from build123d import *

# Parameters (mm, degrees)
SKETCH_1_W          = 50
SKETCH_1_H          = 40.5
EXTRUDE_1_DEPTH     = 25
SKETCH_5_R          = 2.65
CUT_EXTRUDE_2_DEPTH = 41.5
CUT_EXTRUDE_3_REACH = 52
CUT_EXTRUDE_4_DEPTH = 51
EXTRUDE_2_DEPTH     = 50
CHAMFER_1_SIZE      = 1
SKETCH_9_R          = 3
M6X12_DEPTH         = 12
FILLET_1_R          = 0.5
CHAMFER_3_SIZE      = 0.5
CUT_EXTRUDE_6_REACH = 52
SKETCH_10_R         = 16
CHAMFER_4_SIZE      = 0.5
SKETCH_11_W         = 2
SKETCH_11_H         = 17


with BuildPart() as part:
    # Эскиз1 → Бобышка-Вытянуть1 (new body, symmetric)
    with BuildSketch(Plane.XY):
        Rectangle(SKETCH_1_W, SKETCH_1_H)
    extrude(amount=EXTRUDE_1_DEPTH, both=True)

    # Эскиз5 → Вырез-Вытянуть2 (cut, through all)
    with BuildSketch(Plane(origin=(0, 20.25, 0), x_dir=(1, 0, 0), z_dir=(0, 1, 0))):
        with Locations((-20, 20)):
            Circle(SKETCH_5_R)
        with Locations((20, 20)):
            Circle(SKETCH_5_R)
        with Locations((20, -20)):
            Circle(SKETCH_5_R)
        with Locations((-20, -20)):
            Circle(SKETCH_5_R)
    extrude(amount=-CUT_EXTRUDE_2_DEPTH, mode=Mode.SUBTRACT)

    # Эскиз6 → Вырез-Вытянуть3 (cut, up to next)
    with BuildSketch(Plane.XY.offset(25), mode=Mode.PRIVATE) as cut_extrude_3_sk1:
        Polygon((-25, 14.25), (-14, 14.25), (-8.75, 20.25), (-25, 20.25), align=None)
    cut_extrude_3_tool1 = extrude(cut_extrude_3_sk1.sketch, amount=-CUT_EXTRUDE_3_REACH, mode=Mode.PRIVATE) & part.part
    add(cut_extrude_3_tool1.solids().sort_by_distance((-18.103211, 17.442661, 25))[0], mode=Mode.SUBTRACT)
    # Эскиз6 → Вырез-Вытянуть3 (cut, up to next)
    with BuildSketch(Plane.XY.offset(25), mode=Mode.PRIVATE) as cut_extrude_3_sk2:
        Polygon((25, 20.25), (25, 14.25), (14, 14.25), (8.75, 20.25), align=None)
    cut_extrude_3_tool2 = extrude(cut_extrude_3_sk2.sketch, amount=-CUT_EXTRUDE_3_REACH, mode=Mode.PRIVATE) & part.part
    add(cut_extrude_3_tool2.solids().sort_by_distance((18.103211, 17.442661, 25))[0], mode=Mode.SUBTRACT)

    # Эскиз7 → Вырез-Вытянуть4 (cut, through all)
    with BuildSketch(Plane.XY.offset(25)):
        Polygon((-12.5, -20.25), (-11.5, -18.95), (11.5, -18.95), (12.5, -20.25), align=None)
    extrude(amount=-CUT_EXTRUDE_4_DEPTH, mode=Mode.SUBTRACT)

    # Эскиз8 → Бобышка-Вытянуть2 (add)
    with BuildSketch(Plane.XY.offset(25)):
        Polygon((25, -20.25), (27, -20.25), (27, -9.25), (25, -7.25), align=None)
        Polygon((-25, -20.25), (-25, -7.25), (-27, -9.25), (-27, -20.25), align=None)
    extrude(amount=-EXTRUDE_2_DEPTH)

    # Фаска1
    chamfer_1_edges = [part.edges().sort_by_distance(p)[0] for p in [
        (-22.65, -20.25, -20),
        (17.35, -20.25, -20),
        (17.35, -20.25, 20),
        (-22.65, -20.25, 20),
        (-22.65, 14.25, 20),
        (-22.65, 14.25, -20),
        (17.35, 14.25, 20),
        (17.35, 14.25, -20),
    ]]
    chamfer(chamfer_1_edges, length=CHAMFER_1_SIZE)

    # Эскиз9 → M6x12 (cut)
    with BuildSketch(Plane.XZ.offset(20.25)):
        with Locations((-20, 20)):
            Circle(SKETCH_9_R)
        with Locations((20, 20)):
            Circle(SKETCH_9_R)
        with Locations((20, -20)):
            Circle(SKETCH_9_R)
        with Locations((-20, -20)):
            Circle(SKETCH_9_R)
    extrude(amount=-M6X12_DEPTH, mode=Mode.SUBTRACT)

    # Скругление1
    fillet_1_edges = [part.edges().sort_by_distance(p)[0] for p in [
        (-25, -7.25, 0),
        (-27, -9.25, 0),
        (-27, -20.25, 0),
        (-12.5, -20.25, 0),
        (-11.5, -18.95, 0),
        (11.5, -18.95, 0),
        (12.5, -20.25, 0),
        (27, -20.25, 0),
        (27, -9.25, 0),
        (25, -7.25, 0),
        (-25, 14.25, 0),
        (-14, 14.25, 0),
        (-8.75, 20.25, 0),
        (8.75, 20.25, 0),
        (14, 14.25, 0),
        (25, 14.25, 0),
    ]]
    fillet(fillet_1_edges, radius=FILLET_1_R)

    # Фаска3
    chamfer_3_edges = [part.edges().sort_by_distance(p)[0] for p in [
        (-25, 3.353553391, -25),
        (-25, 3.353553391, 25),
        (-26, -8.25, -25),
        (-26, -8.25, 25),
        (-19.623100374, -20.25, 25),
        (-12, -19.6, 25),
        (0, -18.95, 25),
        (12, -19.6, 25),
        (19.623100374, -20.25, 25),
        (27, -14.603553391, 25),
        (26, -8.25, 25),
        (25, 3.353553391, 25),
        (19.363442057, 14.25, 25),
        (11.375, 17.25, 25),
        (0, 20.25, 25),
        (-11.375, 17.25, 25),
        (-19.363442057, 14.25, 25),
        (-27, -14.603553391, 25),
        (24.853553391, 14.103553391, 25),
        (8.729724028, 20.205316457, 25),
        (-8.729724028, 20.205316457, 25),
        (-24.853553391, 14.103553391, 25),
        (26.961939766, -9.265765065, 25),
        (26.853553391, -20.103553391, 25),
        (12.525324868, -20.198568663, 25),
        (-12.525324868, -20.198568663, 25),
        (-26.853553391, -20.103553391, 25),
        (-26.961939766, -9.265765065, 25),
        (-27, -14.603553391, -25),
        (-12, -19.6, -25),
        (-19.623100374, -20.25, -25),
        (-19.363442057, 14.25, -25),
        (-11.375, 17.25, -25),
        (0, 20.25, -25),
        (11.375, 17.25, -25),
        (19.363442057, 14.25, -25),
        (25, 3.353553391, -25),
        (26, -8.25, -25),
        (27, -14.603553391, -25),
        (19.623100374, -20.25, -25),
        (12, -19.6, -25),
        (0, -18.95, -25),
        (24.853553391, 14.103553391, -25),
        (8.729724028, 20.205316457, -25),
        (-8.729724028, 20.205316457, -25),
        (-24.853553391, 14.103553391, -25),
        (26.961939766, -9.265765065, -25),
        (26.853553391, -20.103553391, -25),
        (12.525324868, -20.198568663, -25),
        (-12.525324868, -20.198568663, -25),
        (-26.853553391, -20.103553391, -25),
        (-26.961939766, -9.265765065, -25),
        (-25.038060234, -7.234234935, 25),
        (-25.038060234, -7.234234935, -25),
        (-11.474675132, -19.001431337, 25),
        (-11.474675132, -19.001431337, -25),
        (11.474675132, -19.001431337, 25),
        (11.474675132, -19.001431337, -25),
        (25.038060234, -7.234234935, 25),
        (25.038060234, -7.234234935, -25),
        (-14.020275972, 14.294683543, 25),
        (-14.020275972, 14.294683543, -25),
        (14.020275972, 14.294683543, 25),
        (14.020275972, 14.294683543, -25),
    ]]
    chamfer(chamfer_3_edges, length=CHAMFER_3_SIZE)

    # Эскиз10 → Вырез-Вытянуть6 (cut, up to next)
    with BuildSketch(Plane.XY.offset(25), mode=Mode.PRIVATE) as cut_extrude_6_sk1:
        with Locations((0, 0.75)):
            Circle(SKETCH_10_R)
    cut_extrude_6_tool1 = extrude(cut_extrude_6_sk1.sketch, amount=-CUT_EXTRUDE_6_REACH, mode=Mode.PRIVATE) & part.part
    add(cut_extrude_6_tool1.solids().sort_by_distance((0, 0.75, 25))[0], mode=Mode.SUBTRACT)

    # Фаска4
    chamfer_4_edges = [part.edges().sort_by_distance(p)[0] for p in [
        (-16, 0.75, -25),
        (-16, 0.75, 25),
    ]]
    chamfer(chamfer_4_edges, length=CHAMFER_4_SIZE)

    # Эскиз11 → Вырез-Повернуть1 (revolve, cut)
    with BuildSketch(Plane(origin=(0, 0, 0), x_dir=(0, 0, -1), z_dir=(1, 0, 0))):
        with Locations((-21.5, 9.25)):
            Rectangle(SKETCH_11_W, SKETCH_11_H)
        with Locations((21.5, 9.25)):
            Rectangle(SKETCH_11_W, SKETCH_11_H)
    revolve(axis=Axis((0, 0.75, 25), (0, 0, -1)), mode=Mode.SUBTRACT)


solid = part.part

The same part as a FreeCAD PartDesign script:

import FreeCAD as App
import Part
import Sketcher
Q = App.Units.Quantity


def edges_at(feature, points):
    """Names of the edges that pass closest to the given points."""
    edges = feature.Shape.Edges
    near = lambda p: min(range(len(edges)), key=lambda i: edges[i].distToShape(Part.Vertex(*p))[0])
    return sorted({f"Edge{near(p) + 1}" for p in points})


def add_polygon(sketch, points):
    """Adds a closed chain of lines whose ends are joined by coincident constraints."""
    first, n = sketch.GeometryCount, len(points)
    for a, b in zip(points, points[1:] + points[:1]):
        sketch.addGeometry(Part.LineSegment(App.Vector(*a, 0), App.Vector(*b, 0)), False)
    for i in range(n):
        sketch.addConstraint(Sketcher.Constraint("Coincident", first + i, 2, first + (i + 1) % n, 1))

doc = App.newDocument("Part")
body = doc.addObject("PartDesign::Body", "Body")

sketch1 = body.newObject("Sketcher::SketchObject", "Sketch")
sketch1.AttachmentSupport = (doc.getObject("XY_Plane"), [""])
sketch1.MapMode = "FlatFace"
add_polygon(sketch1, [(-25, 20), (-25, -20), (25, -20), (25, 20)])
sketch1.addConstraint([
    Sketcher.Constraint("Vertical", 0),
    Sketcher.Constraint("Horizontal", 1),
    Sketcher.Constraint("Vertical", 2),
    Sketcher.Constraint("Horizontal", 3),
    Sketcher.Constraint("Symmetric", 0, 2, 2, 2, -1, 1),
    Sketcher.Constraint("DistanceX", 1, 1, 1, 2, Q("50 mm")),
    Sketcher.Constraint("DistanceY", 0, 2, 0, 1, Q("40.5 mm")),
])
pad1 = body.newObject("PartDesign::Pad", "Pad")
pad1.Profile = sketch1
pad1.Length = 50
pad1.Midplane = True

sketch2 = body.newObject("Sketcher::SketchObject", "Sketch001")
sketch2.AttachmentSupport = (doc.getObject("XZ_Plane"), [""])
sketch2.MapMode = "FlatFace"
sketch2.AttachmentOffset = App.Placement(App.Vector(0, 0, -20.25), App.Rotation())
sketch2.addGeometry([
    Part.Circle(App.Vector(-20, -20, 0), App.Vector(0, 0, 1), 2.6),
    Part.Circle(App.Vector(20, -20, 0), App.Vector(0, 0, 1), 2.6),
    Part.Circle(App.Vector(20, 20, 0), App.Vector(0, 0, 1), 2.6),
    Part.Circle(App.Vector(-20, 20, 0), App.Vector(0, 0, 1), 2.6),
], False)
sketch2.addConstraint([
    Sketcher.Constraint("Equal", 0, 1),
    Sketcher.Constraint("Equal", 1, 2),
    Sketcher.Constraint("Equal", 2, 3),
    Sketcher.Constraint("Symmetric", 0, 3, 2, 3, -1, 1),
    Sketcher.Constraint("Symmetric", 1, 3, 3, 3, -1, 1),
    Sketcher.Constraint("Symmetric", 0, 3, 1, 3, -2),
    Sketcher.Constraint("Diameter", 0, Q("5.3 mm")),
    Sketcher.Constraint("DistanceX", 0, 3, -1, 1, Q("20 mm")),
    Sketcher.Constraint("DistanceY", 0, 3, -1, 1, Q("20 mm")),
])
pocket1 = body.newObject("PartDesign::Pocket", "Pocket")
pocket1.Profile = sketch2
pocket1.Type = "ThroughAll"
pocket1.Reversed = True

sketch3 = body.newObject("Sketcher::SketchObject", "Sketch002")
sketch3.AttachmentSupport = (doc.getObject("XY_Plane"), [""])
sketch3.MapMode = "FlatFace"
sketch3.AttachmentOffset = App.Placement(App.Vector(0, 0, 25), App.Rotation())
add_polygon(sketch3, [(-25, 14), (-14, 14), (-9, 20), (-25, 20)])
sketch3.addConstraint([
    Sketcher.Constraint("Horizontal", 0),
    Sketcher.Constraint("Horizontal", 2),
    Sketcher.Constraint("Vertical", 3),
    Sketcher.Constraint("DistanceX", 0, 1, 0, 2, Q("11 mm")),
    Sketcher.Constraint("DistanceY", 3, 2, 3, 1, Q("6 mm")),
    Sketcher.Constraint("DistanceX", 0, 2, -1, 1, Q("14 mm")),
    Sketcher.Constraint("DistanceX", 2, 2, 2, 1, Q("16.25 mm")),
    Sketcher.Constraint("DistanceY", -1, 1, 0, 2, Q("14.25 mm")),
])
pocket2 = body.newObject("PartDesign::Pocket", "Pocket001")
pocket2.Profile = sketch3
pocket2.Length = 50

sketch4 = body.newObject("Sketcher::SketchObject", "Sketch003")
sketch4.AttachmentSupport = (doc.getObject("XY_Plane"), [""])
sketch4.MapMode = "FlatFace"
sketch4.AttachmentOffset = App.Placement(App.Vector(0, 0, 25), App.Rotation())
add_polygon(sketch4, [(25, 14), (25, 20), (9, 20), (14, 14)])
sketch4.addConstraint([
    Sketcher.Constraint("Vertical", 0),
    Sketcher.Constraint("Horizontal", 1),
    Sketcher.Constraint("Horizontal", 3),
    Sketcher.Constraint("DistanceX", 3, 1, 3, 2, Q("11 mm")),
    Sketcher.Constraint("DistanceY", 0, 1, 0, 2, Q("6 mm")),
    Sketcher.Constraint("DistanceX", -1, 1, 0, 2, Q("25 mm")),
    Sketcher.Constraint("DistanceX", 1, 2, 1, 1, Q("16.25 mm")),
    Sketcher.Constraint("DistanceY", -1, 1, 0, 2, Q("20.25 mm")),
])
pocket3 = body.newObject("PartDesign::Pocket", "Pocket002")
pocket3.Profile = sketch4
pocket3.Type = "UpToFirst"

sketch5 = body.newObject("Sketcher::SketchObject", "Sketch004")
sketch5.AttachmentSupport = (doc.getObject("XY_Plane"), [""])
sketch5.MapMode = "FlatFace"
sketch5.AttachmentOffset = App.Placement(App.Vector(0, 0, 25), App.Rotation())
add_polygon(sketch5, [(-11.5, -18.9), (-12.5, -20.2), (12.5, -20.2), (11.5, -18.9)])
sketch5.addConstraint([
    Sketcher.Constraint("Horizontal", 1),
    Sketcher.Constraint("Horizontal", 3),
    Sketcher.Constraint("Equal", 0, 2),
    Sketcher.Constraint("DistanceX", 1, 1, 1, 2, Q("25 mm")),
    Sketcher.Constraint("DistanceX", 3, 2, 3, 1, Q("23 mm")),
    Sketcher.Constraint("DistanceX", 0, 2, -1, 1, Q("12.5 mm")),
    Sketcher.Constraint("DistanceY", 1, 2, 2, 2, Q("1.3 mm")),
    Sketcher.Constraint("DistanceY", 0, 2, -1, 1, Q("20.25 mm")),
])
pocket4 = body.newObject("PartDesign::Pocket", "Pocket003")
pocket4.Profile = sketch5
pocket4.Type = "ThroughAll"

sketch6 = body.newObject("Sketcher::SketchObject", "Sketch005")
sketch6.AttachmentSupport = (doc.getObject("XY_Plane"), [""])
sketch6.MapMode = "FlatFace"
sketch6.AttachmentOffset = App.Placement(App.Vector(0, 0, 25), App.Rotation())
add_polygon(sketch6, [(25, -20.2), (27, -20.2), (27, -9.2), (25, -7.2)])
add_polygon(sketch6, [(-25, -20.2), (-25, -7.2), (-27, -9.2), (-27, -20.2)])
sketch6.addConstraint([
    Sketcher.Constraint("Horizontal", 0),
    Sketcher.Constraint("Vertical", 1),
    Sketcher.Constraint("Vertical", 3),
    Sketcher.Constraint("Vertical", 4),
    Sketcher.Constraint("Vertical", 6),
    Sketcher.Constraint("Horizontal", 7),
    Sketcher.Constraint("Symmetric", 2, 2, 4, 2, -2),
    Sketcher.Constraint("Symmetric", 1, 2, 5, 2, -2),
    Sketcher.Constraint("Perpendicular", 2, 5),
    Sketcher.Constraint("Horizontal", 3, 2, 6, 2),
    Sketcher.Constraint("DistanceX", 0, 1, 0, 2, Q("2 mm")),
    Sketcher.Constraint("DistanceY", 1, 1, 1, 2, Q("11 mm")),
    Sketcher.Constraint("DistanceX", -1, 1, 0, 2, Q("27 mm")),
    Sketcher.Constraint("DistanceY", 0, 2, -1, 1, Q("20.25 mm")),
])
pad2 = body.newObject("PartDesign::Pad", "Pad001")
pad2.Profile = sketch6
pad2.Length = 50
pad2.Reversed = True
doc.recompute()

chamfer = body.newObject("PartDesign::Chamfer", "Chamfer")
chamfer.Base = (pad2, edges_at(pad2, [
    (-22.65, -20.25, -20),
    (17.35, -20.25, -20),
    (17.35, -20.25, 20),
    (-22.65, -20.25, 20),
    (-22.65, 14.25, 20),
    (-22.65, 14.25, -20),
    (17.35, 14.25, 20),
    (17.35, 14.25, -20),
]))
chamfer.Size = 1

sketch7 = body.newObject("Sketcher::SketchObject", "Sketch006")
sketch7.AttachmentSupport = (doc.getObject("XZ_Plane"), [""])
sketch7.MapMode = "FlatFace"
sketch7.AttachmentOffset = App.Placement(App.Vector(0, 0, 20.25), App.Rotation())
sketch7.addGeometry([
    Part.Circle(App.Vector(-20, 20, 0), App.Vector(0, 0, 1), 3),
    Part.Circle(App.Vector(20, 20, 0), App.Vector(0, 0, 1), 3),
    Part.Circle(App.Vector(20, -20, 0), App.Vector(0, 0, 1), 3),
    Part.Circle(App.Vector(-20, -20, 0), App.Vector(0, 0, 1), 3),
], False)
sketch7.addConstraint([
    Sketcher.Constraint("Equal", 0, 1),
    Sketcher.Constraint("Equal", 1, 2),
    Sketcher.Constraint("Equal", 2, 3),
    Sketcher.Constraint("Symmetric", 0, 3, 2, 3, -1, 1),
    Sketcher.Constraint("Symmetric", 1, 3, 3, 3, -1, 1),
    Sketcher.Constraint("Symmetric", 0, 3, 1, 3, -2),
    Sketcher.Constraint("Diameter", 0, Q("6 mm")),
    Sketcher.Constraint("DistanceX", 0, 3, -1, 1, Q("20 mm")),
    Sketcher.Constraint("DistanceY", -1, 1, 0, 3, Q("20 mm")),
])
pocket5 = body.newObject("PartDesign::Pocket", "Pocket004")
pocket5.Profile = sketch7
pocket5.Length = 12
doc.recompute()

fillet = body.newObject("PartDesign::Fillet", "Fillet")
fillet.Base = (pocket5, edges_at(pocket5, [
    (-25, -7.25, 0),
    (-27, -9.25, 0),
    (-27, -20.25, 0),
    (-12.5, -20.25, 0),
    (-11.5, -18.95, 0),
    (11.5, -18.95, 0),
    (12.5, -20.25, 0),
    (27, -20.25, 0),
    (27, -9.25, 0),
    (25, -7.25, 0),
    (-25, 14.25, 0),
    (-14, 14.25, 0),
    (-8.75, 20.25, 0),
    (8.75, 20.25, 0),
    (14, 14.25, 0),
    (25, 14.25, 0),
]))
fillet.Radius = 0.5
doc.recompute()

chamfer2 = body.newObject("PartDesign::Chamfer", "Chamfer001")
chamfer2.Base = (fillet, edges_at(fillet, [
    (-25, 3.354, -25),
    (-25, 3.354, 25),
    (-26, -8.25, -25),
    (-26, -8.25, 25),
    (-19.623, -20.25, 25),
    (-12, -19.6, 25),
    (0, -18.95, 25),
    (12, -19.6, 25),
    (19.623, -20.25, 25),
    (27, -14.604, 25),
    (26, -8.25, 25),
    (25, 3.354, 25),
    (19.363, 14.25, 25),
    (11.375, 17.25, 25),
    (0, 20.25, 25),
    (-11.375, 17.25, 25),
    (-19.363, 14.25, 25),
    (-27, -14.604, 25),
    (24.854, 14.104, 25),
    (8.73, 20.205, 25),
    (-8.73, 20.205, 25),
    (-24.854, 14.104, 25),
    (26.962, -9.266, 25),
    (26.854, -20.104, 25),
    (12.525, -20.199, 25),
    (-12.525, -20.199, 25),
    (-26.854, -20.104, 25),
    (-26.962, -9.266, 25),
    (-27, -14.604, -25),
    (-12, -19.6, -25),
    (-19.623, -20.25, -25),
    (-19.363, 14.25, -25),
    (-11.375, 17.25, -25),
    (0, 20.25, -25),
    (11.375, 17.25, -25),
    (19.363, 14.25, -25),
    (25, 3.354, -25),
    (26, -8.25, -25),
    (27, -14.604, -25),
    (19.623, -20.25, -25),
    (12, -19.6, -25),
    (0, -18.95, -25),
    (24.854, 14.104, -25),
    (8.73, 20.205, -25),
    (-8.73, 20.205, -25),
    (-24.854, 14.104, -25),
    (26.962, -9.266, -25),
    (26.854, -20.104, -25),
    (12.525, -20.199, -25),
    (-12.525, -20.199, -25),
    (-26.854, -20.104, -25),
    (-26.962, -9.266, -25),
    (-25.038, -7.234, 25),
    (-25.038, -7.234, -25),
    (-11.475, -19.001, 25),
    (-11.475, -19.001, -25),
    (11.475, -19.001, 25),
    (11.475, -19.001, -25),
    (25.038, -7.234, 25),
    (25.038, -7.234, -25),
    (-14.02, 14.295, 25),
    (-14.02, 14.295, -25),
    (14.02, 14.295, 25),
    (14.02, 14.295, -25),
]))
chamfer2.Size = 0.5

sketch8 = body.newObject("Sketcher::SketchObject", "Sketch007")
sketch8.AttachmentSupport = (doc.getObject("XY_Plane"), [""])
sketch8.MapMode = "FlatFace"
sketch8.AttachmentOffset = App.Placement(App.Vector(0, 0, 25), App.Rotation())
sketch8.addGeometry(Part.Circle(App.Vector(0, 1, 0), App.Vector(0, 0, 1), 16), False)
sketch8.addConstraint([
    Sketcher.Constraint("PointOnObject", 0, 3, -2),
    Sketcher.Constraint("Diameter", 0, Q("32 mm")),
    Sketcher.Constraint("DistanceY", -1, 1, 0, 3, Q("0.75 mm")),
])
pocket6 = body.newObject("PartDesign::Pocket", "Pocket005")
pocket6.Profile = sketch8
pocket6.Type = "UpToFirst"
doc.recompute()

chamfer3 = body.newObject("PartDesign::Chamfer", "Chamfer002")
chamfer3.Base = (pocket6, edges_at(pocket6, [(-16, 0.75, -25), (-16, 0.75, 25)]))
chamfer3.Size = 0.5

sketch9 = body.newObject("Sketcher::SketchObject", "Sketch008")
sketch9.AttachmentSupport = (doc.getObject("YZ_Plane"), [""])
sketch9.MapMode = "FlatFace"
add_polygon(sketch9, [(17.8, 22.5), (0.8, 22.5), (0.8, 20.5), (17.8, 20.5)])
add_polygon(sketch9, [(17.8, -20.5), (0.8, -20.5), (0.8, -22.5), (17.8, -22.5)])
sketch9.addGeometry(Part.LineSegment(App.Vector(0.8, 22.5, 0), App.Vector(0.8, -22.5, 0)), True)
sketch9.addConstraint([
    Sketcher.Constraint("Horizontal", 0),
    Sketcher.Constraint("Vertical", 1),
    Sketcher.Constraint("Horizontal", 2),
    Sketcher.Constraint("Vertical", 3),
    Sketcher.Constraint("Horizontal", 4),
    Sketcher.Constraint("Vertical", 5),
    Sketcher.Constraint("Horizontal", 6),
    Sketcher.Constraint("Vertical", 7),
    Sketcher.Constraint("Vertical", 8),
    Sketcher.Constraint("Coincident", 8, 1, 0, 2),
    Sketcher.Constraint("Coincident", 8, 2, 5, 2),
    Sketcher.Constraint("Symmetric", 3, 2, 6, 2, -1),
    Sketcher.Constraint("Equal", 3, 5),
    Sketcher.Constraint("DistanceX", 0, 2, 0, 1, Q("17 mm")),
    Sketcher.Constraint("DistanceY", 1, 2, 1, 1, Q("2 mm")),
    Sketcher.Constraint("DistanceY", 8, 2, 8, 1, Q("45 mm")),
    Sketcher.Constraint("DistanceX", -1, 1, 0, 2, Q("0.75 mm")),
])
groove = body.newObject("PartDesign::Groove", "Groove")
groove.Profile = sketch9
groove.ReferenceAxis = (sketch9, ["Axis0"])
groove.Angle = 360

doc.recompute()
